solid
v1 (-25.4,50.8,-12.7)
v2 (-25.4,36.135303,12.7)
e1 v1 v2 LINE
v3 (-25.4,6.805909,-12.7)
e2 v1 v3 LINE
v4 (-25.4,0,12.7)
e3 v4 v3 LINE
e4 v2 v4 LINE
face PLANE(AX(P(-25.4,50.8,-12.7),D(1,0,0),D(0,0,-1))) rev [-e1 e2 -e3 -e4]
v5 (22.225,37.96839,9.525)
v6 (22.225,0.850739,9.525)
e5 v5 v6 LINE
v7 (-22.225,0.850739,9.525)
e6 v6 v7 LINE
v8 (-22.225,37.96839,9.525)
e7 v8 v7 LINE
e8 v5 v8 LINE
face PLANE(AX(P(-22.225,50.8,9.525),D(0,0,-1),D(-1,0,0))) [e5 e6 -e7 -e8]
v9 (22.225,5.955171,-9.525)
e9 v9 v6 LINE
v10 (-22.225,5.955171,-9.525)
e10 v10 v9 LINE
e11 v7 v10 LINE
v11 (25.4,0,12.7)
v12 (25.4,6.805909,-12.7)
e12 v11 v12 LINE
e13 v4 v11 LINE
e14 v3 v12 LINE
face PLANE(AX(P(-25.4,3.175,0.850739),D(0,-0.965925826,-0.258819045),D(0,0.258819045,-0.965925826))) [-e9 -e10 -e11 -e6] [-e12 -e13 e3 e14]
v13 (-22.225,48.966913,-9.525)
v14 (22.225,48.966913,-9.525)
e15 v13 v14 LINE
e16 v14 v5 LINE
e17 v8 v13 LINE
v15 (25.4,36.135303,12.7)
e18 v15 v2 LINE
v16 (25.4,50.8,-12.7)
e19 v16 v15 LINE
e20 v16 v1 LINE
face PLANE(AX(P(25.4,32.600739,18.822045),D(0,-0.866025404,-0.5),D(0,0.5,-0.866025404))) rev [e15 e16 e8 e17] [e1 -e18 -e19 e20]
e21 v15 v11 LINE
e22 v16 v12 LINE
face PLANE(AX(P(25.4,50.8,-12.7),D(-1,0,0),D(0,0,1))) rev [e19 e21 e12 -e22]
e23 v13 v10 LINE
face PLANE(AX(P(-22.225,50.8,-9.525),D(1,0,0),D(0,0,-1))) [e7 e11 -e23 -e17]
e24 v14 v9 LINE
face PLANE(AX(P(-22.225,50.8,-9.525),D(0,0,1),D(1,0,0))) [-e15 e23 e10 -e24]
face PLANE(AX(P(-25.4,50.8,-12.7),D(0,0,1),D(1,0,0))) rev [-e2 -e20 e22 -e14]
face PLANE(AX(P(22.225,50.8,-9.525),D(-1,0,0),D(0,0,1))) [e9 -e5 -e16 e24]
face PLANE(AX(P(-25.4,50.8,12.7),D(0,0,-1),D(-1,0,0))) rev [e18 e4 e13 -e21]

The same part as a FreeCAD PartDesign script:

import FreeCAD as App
import Part
import Sketcher

V = App.Vector
Q = App.Units.Quantity

doc = App.newDocument("Part")
body = doc.addObject("PartDesign::Body", "Body")

sketch1 = body.newObject("Sketcher::SketchObject", "Sketch")
sketch1.AttachmentSupport = (doc.getObject("XZ_Plane"), [""])
sketch1.MapMode = "FlatFace"
sketch1.addGeometry([
    Part.LineSegment(V(-25, -13, 0), V(-25, 13, 0)),
    Part.LineSegment(V(-25, 13, 0), V(25, 13, 0)),
    Part.LineSegment(V(25, 13, 0), V(25, -13, 0)),
    Part.LineSegment(V(25, -13, 0), V(-25, -13, 0)),
    Part.LineSegment(V(22, 10, 0), V(-22, 10, 0)),
    Part.LineSegment(V(-22, 10, 0), V(-22, -10, 0)),
    Part.LineSegment(V(-22, -10, 0), V(22, -10, 0)),
    Part.LineSegment(V(22, -10, 0), V(22, 10, 0)),
], False)
sketch1.addConstraint([
    Sketcher.Constraint("Coincident", 0, 2, 1, 1),
    Sketcher.Constraint("Coincident", 1, 2, 2, 1),
    Sketcher.Constraint("Coincident", 2, 2, 3, 1),
    Sketcher.Constraint("Coincident", 3, 2, 0, 1),
    Sketcher.Constraint("Coincident", 4, 2, 5, 1),
    Sketcher.Constraint("Coincident", 5, 2, 6, 1),
    Sketcher.Constraint("Coincident", 6, 2, 7, 1),
    Sketcher.Constraint("Coincident", 7, 2, 4, 1),
    Sketcher.Constraint("Vertical", 0),
    Sketcher.Constraint("Horizontal", 1),
    Sketcher.Constraint("Vertical", 2),
    Sketcher.Constraint("Horizontal", 3),
    Sketcher.Constraint("Horizontal", 4),
    Sketcher.Constraint("Vertical", 5),
    Sketcher.Constraint("Horizontal", 6),
    Sketcher.Constraint("Vertical", 7),
    Sketcher.Constraint("Symmetric", 0, 2, 2, 2, -1, 1),
    Sketcher.Constraint("Symmetric", 4, 2, 6, 2, -1, 1),
    Sketcher.Constraint("DistanceX", 1, 1, 1, 2, Q("2 in")),
    Sketcher.Constraint("DistanceY", 0, 1, 0, 2, Q("1 in")),
    Sketcher.Constraint("DistanceX", 4, 2, 4, 1, Q("1.75 in")),
    Sketcher.Constraint("DistanceY", 5, 2, 5, 1, Q("0.75 in")),
])
pad1 = body.newObject("PartDesign::Pad", "Pad")
pad1.Profile = sketch1
pad1.Length = Q("2 in")
pad1.Reversed = True

sketch2 = body.newObject("Sketcher::SketchObject", "Sketch001")
sketch2.AttachmentSupport = (doc.getObject("YZ_Plane"), [""])
sketch2.MapMode = "FlatFace"
sketch2.AttachmentOffset = App.Placement(V(0, 0, -1 * 25.4), App.Rotation())
sketch2.addGeometry([
    Part.LineSegment(V(51, 13, 0), V(51, -13, 0)),
    Part.LineSegment(V(51, -13, 0), V(36, 13, 0)),
    Part.LineSegment(V(36, 13, 0), V(51, 13, 0)),
], False)
sketch2.addConstraint([
    Sketcher.Constraint("Coincident", 0, 2, 1, 1),
    Sketcher.Constraint("Coincident", 1, 2, 2, 1),
    Sketcher.Constraint("Coincident", 2, 2, 0, 1),
    Sketcher.Constraint("Vertical", 0),
    Sketcher.Constraint("Horizontal", 2),
    Sketcher.Constraint("DistanceY", 0, 2, 0, 1, Q("1 in")),
    Sketcher.Constraint("DistanceX", -1, 1, 0, 2, Q("2 in")),
    Sketcher.Constraint("Angle", 1, Q("120 deg")),
    Sketcher.Constraint("DistanceY", 0, 2, -1, 1, Q("0.5 in")),
])
pocket1 = body.newObject("PartDesign::Pocket", "Pocket")
pocket1.Profile = sketch2
pocket1.Type = "ThroughAll"
pocket1.Reversed = True

sketch3 = body.newObject("Sketcher::SketchObject", "Sketch002")
sketch3.AttachmentSupport = (doc.getObject("YZ_Plane"), [""])
sketch3.MapMode = "FlatFace"
sketch3.AttachmentOffset = App.Placement(V(0, 0, 1 * 25.4), App.Rotation())
sketch3.addGeometry([
    Part.LineSegment(V(7, -13, 0), V(0, 13, 0)),
    Part.LineSegment(V(0, 13, 0), V(0, -13, 0)),
    Part.LineSegment(V(0, -13, 0), V(7, -13, 0)),
], False)
sketch3.addConstraint([
    Sketcher.Constraint("Coincident", 0, 2, 1, 1),
    Sketcher.Constraint("Coincident", 1, 2, 2, 1),
    Sketcher.Constraint("Coincident", 2, 2, 0, 1),
    Sketcher.Constraint("Vertical", 1),
    Sketcher.Constraint("Horizontal", 2),
    Sketcher.Constraint("Symmetric", 0, 2, 1, 2, -1, 1),
    Sketcher.Constraint("DistanceY", 1, 2, 1, 1, Q("1 in")),
    Sketcher.Constraint("Angle", 0, Q("105 deg")),
])
pocket2 = body.newObject("PartDesign::Pocket", "Pocket001")
pocket2.Profile = sketch3
pocket2.Type = "ThroughAll"

doc.recompute()
